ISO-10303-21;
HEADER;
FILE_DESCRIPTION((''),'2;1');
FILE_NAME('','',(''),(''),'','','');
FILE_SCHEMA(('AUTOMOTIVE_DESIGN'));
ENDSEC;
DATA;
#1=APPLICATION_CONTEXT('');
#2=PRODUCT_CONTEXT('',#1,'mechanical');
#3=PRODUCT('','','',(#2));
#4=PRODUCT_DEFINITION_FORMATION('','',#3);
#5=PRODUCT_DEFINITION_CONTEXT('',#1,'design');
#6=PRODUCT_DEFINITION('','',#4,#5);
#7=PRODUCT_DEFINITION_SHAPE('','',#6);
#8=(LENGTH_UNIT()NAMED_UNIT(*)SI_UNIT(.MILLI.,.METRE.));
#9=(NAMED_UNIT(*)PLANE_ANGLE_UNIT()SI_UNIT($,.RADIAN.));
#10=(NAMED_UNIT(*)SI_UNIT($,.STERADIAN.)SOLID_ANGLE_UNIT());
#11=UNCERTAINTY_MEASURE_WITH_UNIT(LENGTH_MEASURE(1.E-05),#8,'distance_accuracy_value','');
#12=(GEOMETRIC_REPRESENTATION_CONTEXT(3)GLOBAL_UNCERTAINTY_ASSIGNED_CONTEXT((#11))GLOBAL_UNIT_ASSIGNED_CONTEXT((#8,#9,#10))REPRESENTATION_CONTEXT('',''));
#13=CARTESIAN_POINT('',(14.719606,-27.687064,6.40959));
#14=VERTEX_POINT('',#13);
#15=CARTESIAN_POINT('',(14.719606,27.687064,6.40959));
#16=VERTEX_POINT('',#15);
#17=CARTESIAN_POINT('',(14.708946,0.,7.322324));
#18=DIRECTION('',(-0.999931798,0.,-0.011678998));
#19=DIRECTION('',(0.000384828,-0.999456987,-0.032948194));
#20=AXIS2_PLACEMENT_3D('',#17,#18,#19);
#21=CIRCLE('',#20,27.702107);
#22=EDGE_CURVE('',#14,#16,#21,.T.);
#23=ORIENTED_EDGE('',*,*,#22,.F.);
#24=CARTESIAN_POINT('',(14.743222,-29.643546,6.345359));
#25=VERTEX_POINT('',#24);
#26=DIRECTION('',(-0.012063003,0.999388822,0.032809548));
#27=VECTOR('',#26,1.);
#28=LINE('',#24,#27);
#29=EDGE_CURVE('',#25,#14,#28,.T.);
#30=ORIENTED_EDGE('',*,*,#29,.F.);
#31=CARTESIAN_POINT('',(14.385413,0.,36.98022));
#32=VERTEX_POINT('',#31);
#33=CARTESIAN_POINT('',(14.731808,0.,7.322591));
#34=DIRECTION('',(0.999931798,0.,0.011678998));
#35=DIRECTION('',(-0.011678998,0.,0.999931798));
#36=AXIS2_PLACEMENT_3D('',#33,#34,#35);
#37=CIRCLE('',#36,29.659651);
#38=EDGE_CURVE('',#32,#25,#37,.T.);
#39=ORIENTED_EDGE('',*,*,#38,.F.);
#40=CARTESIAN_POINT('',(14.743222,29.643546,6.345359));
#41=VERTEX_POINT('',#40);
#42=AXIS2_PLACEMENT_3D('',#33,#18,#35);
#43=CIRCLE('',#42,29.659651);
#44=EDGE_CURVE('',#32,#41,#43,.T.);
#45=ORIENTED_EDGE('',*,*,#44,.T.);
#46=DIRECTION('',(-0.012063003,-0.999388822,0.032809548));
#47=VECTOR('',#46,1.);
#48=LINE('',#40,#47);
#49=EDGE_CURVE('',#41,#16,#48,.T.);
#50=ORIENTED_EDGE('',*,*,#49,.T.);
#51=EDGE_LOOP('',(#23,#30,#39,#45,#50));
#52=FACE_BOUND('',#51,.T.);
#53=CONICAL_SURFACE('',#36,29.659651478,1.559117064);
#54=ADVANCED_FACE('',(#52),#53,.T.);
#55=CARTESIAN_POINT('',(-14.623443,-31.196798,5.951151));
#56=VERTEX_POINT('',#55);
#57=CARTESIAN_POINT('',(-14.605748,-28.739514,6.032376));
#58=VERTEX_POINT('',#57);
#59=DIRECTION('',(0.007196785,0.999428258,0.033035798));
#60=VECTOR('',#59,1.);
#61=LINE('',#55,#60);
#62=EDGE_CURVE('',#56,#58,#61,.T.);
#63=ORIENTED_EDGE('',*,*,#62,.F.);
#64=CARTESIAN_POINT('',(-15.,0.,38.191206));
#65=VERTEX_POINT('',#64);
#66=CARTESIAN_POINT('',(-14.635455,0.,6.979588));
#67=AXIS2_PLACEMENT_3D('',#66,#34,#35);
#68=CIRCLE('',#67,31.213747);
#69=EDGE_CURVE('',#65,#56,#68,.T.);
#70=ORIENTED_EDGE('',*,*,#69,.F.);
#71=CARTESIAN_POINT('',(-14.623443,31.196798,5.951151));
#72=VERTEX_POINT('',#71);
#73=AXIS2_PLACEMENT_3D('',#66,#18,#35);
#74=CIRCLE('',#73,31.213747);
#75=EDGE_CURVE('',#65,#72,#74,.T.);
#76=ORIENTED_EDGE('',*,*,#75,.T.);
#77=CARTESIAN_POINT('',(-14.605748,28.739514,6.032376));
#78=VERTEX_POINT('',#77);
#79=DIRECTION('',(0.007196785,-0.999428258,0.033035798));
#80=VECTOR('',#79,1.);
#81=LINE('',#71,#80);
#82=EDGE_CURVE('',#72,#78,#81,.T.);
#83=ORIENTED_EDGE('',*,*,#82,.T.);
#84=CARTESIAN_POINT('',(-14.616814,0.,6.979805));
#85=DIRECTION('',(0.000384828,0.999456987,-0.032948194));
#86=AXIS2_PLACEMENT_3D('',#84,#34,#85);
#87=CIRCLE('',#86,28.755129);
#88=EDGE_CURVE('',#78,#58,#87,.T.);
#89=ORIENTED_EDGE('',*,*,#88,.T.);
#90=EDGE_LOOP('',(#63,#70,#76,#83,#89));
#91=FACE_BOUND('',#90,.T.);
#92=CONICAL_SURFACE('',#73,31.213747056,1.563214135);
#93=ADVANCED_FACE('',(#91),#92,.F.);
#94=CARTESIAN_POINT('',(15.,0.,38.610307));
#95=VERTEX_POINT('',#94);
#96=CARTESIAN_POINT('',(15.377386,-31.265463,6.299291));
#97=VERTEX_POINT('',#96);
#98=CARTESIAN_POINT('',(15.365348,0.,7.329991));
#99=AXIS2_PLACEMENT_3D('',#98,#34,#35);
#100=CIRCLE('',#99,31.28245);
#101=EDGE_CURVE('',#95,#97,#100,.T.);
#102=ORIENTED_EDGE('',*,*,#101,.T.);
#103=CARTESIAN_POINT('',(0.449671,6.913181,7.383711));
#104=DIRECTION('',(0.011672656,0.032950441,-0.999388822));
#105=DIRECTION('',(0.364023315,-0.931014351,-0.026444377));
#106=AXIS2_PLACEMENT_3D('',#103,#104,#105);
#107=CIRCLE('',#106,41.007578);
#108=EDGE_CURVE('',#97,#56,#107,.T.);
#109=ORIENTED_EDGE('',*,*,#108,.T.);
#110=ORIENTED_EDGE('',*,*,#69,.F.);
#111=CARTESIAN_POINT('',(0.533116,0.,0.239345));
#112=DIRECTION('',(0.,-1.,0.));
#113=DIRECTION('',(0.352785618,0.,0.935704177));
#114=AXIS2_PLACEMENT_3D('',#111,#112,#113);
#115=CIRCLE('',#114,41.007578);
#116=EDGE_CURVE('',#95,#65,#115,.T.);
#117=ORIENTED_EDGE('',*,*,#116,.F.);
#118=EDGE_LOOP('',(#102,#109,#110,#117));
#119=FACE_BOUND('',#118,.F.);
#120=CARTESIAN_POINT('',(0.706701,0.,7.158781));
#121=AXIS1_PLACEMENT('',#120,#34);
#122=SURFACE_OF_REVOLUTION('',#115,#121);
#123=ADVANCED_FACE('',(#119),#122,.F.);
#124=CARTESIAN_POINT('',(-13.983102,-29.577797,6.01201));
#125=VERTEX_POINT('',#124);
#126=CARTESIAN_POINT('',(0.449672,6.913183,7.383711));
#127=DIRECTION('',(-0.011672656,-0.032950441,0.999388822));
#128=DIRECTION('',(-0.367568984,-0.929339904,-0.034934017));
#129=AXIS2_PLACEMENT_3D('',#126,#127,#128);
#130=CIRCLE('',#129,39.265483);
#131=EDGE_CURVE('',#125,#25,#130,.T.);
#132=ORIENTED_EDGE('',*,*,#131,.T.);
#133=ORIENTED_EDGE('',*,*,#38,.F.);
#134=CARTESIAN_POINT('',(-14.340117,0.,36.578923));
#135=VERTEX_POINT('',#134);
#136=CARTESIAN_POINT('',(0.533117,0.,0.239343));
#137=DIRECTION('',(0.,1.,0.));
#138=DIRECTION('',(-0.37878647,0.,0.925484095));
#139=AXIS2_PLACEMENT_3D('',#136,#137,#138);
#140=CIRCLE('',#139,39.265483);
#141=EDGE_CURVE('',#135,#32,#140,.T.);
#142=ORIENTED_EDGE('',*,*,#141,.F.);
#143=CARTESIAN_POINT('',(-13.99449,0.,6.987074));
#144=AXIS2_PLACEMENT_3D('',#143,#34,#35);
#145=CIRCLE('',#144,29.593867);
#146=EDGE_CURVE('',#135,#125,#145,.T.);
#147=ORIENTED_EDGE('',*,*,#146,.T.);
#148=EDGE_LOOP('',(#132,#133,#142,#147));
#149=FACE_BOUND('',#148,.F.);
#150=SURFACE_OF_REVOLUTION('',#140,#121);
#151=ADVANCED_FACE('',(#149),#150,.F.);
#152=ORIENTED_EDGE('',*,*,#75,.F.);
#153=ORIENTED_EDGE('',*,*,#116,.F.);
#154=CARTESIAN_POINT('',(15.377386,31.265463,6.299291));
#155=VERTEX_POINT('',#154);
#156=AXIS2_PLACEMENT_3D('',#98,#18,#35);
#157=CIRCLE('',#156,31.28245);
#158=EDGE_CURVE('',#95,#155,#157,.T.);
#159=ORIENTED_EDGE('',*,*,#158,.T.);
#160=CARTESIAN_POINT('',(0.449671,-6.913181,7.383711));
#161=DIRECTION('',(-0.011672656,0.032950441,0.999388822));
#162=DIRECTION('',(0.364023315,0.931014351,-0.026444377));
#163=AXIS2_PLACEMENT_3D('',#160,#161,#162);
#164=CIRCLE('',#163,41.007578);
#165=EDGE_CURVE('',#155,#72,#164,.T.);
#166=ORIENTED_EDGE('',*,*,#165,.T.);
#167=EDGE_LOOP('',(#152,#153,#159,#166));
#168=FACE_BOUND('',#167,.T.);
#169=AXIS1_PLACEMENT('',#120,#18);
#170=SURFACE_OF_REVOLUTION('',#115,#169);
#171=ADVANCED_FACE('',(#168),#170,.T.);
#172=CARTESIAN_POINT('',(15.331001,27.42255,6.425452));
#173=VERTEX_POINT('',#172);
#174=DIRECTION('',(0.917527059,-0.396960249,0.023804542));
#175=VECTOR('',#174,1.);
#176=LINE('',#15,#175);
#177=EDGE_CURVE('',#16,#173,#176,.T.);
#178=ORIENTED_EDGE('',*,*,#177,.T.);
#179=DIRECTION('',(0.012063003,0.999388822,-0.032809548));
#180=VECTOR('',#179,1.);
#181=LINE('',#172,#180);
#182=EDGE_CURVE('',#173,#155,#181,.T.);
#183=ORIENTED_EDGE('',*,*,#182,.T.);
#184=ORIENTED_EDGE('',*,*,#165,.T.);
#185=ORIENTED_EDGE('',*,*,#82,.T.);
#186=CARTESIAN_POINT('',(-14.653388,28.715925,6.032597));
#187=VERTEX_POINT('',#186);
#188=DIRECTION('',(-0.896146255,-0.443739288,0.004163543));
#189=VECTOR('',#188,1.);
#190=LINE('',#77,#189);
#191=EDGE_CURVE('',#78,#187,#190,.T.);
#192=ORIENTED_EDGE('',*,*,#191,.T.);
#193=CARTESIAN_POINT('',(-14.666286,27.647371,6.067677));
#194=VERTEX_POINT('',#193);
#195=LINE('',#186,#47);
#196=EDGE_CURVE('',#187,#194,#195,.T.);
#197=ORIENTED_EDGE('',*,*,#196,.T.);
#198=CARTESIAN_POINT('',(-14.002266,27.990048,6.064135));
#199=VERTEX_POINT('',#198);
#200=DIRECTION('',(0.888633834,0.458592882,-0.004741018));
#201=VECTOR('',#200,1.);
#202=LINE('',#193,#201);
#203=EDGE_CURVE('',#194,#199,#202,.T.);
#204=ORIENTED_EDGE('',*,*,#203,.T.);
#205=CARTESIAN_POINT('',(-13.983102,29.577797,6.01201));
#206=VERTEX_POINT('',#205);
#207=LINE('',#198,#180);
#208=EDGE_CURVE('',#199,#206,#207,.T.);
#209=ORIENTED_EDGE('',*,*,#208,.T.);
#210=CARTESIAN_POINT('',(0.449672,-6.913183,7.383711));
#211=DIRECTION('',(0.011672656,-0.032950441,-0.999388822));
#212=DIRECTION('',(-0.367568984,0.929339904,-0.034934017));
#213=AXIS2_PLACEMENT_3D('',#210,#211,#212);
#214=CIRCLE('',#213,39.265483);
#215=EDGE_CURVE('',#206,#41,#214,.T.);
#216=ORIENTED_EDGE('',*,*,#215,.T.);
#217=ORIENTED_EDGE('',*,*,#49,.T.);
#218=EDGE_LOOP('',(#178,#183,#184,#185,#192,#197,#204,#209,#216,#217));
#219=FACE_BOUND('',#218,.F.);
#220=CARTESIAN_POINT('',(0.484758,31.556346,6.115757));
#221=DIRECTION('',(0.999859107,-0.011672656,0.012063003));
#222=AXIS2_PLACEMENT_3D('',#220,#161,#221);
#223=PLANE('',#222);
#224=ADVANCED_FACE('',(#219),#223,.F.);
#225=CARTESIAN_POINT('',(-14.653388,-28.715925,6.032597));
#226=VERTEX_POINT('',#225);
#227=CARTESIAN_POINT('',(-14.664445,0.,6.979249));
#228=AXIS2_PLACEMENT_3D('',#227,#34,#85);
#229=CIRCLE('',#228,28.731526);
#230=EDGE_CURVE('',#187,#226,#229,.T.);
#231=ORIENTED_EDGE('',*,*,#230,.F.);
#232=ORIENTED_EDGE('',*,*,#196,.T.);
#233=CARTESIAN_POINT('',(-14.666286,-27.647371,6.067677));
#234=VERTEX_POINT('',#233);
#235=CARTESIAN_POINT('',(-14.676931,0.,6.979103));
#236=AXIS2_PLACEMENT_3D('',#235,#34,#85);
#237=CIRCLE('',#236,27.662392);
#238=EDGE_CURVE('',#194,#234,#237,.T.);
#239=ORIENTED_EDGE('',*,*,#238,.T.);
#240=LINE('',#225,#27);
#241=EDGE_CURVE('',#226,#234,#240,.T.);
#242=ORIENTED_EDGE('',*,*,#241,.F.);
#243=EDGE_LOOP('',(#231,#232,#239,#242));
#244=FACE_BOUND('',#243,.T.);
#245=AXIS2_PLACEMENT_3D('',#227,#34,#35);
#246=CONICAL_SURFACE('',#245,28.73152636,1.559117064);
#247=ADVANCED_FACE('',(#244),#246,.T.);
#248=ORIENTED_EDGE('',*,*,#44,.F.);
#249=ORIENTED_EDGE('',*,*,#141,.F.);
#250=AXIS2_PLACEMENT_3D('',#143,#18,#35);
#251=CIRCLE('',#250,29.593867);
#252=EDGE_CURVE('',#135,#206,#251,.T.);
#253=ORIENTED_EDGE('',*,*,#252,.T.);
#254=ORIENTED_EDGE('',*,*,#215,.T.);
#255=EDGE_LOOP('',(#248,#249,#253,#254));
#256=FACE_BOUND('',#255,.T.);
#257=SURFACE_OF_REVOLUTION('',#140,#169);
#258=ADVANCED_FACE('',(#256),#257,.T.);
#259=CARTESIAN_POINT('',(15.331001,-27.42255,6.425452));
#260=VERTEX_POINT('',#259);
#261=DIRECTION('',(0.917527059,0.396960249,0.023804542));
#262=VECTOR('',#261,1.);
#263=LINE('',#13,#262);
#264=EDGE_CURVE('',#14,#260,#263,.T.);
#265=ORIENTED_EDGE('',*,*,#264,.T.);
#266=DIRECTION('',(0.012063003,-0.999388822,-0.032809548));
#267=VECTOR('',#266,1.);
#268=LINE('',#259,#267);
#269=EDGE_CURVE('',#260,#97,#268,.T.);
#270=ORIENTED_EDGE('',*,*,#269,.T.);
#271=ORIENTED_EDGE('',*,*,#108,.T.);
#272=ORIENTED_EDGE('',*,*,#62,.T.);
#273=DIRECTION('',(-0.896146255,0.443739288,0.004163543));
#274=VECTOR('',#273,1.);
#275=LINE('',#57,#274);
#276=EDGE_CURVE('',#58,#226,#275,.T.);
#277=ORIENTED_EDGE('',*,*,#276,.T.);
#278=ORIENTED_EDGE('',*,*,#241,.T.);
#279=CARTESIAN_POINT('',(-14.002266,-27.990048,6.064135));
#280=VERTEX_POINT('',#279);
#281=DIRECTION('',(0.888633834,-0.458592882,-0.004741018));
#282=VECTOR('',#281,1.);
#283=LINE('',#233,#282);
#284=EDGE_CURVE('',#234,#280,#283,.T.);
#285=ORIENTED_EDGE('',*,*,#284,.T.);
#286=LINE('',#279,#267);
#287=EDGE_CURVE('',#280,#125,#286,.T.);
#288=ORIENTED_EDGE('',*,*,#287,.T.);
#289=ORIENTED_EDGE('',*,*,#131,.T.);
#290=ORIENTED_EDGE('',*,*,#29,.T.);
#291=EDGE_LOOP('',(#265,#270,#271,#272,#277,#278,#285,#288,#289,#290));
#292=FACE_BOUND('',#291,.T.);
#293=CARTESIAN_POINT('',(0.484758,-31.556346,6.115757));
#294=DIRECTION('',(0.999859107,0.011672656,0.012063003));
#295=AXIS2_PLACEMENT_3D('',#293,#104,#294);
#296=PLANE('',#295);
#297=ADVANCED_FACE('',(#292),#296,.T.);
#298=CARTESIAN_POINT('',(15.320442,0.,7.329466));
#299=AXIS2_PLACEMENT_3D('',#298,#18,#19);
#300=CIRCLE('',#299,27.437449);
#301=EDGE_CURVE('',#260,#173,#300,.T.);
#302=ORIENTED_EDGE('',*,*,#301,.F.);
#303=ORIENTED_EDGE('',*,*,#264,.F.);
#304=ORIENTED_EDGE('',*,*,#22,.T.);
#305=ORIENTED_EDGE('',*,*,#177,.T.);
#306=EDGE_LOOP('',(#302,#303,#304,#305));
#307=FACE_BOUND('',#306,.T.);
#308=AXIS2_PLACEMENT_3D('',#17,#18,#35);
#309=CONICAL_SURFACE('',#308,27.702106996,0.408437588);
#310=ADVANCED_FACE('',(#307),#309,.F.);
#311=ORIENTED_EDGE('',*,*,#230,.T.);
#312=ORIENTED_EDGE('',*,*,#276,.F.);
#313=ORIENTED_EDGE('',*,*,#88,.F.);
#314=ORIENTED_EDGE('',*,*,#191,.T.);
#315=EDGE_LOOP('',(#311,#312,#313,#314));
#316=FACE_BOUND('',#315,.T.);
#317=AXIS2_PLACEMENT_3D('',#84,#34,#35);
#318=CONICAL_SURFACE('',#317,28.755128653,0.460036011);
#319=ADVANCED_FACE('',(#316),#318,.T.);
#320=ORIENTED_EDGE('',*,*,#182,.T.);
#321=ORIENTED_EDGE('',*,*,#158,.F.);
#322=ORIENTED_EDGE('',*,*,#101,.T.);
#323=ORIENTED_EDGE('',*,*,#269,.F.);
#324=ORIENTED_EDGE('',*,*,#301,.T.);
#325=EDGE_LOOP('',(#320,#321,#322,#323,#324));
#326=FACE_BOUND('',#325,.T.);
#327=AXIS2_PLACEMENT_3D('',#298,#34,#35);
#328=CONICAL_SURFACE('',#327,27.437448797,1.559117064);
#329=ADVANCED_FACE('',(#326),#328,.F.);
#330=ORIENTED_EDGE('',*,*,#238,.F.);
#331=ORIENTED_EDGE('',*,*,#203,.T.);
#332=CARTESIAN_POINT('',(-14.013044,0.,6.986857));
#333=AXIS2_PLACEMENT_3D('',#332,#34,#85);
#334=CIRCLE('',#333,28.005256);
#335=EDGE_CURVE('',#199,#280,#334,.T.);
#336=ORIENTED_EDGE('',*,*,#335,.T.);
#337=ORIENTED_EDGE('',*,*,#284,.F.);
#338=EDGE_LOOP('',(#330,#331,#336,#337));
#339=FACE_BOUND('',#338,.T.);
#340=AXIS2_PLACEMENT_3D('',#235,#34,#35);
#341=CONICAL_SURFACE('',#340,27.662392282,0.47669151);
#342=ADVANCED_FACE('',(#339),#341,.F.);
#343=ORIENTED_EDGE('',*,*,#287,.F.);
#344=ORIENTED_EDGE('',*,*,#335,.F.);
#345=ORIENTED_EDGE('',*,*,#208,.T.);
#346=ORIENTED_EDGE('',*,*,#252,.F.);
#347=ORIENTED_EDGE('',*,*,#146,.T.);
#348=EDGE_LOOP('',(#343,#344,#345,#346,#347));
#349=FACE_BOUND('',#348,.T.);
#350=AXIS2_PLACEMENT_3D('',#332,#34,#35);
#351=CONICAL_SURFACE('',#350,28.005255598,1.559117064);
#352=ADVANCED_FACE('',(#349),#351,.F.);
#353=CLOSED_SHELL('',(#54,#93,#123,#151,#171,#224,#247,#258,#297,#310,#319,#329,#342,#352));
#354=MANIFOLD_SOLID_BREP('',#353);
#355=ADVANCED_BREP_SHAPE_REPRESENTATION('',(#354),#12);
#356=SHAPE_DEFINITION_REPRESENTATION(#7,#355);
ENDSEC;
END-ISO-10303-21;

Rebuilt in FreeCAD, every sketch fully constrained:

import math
import FreeCAD as App
import Part
import Sketcher
from FreeCAD import Vector

doc = App.newDocument("Part")
params = doc.addObject("Spreadsheet::Sheet", "Params")
for row, (alias, value) in enumerate([
    ("revolution_angle", "91.888263 deg"),
    ("revolution2_angle", "91.888263 deg"),
], start=1):
    params.set(f"A{row}", alias)
    params.set(f"B{row}", "=" + value)
    params.setAlias(f"B{row}", alias)

body = doc.addObject("PartDesign::Body", "Body")

sketch1 = body.newObject("Sketcher::SketchObject", "Sketch")
sketch1.AttachmentSupport = (doc.getObject("XZ_Plane"), [""])
sketch1.MapMode = "FlatFace"
sketch1.addGeometry(Part.ArcOfCircle(Part.Circle(Vector(0.53, 0.24, 0), Vector(0, 0, 1), 41.01), math.radians(69), math.radians(112)), False)
sketch1.addGeometry(Part.LineSegment(Vector(-15, 38.19, 0), Vector(-14.95, 35.73, 0)), False)
sketch1.addGeometry(Part.LineSegment(Vector(-14.95, 35.73, 0), Vector(-15, 35.71, 0)), False)
sketch1.addGeometry(Part.LineSegment(Vector(-15, 35.71, 0), Vector(-15, 34.64, 0)), False)
sketch1.addGeometry(Part.LineSegment(Vector(-15, 34.64, 0), Vector(-14.34, 34.99, 0)), False)
sketch1.addGeometry(Part.LineSegment(Vector(-14.34, 34.99, 0), Vector(-14.34, 36.58, 0)), False)
sketch1.addGeometry(Part.ArcOfCircle(Part.Circle(Vector(0.53, 0.24, 0), Vector(0, 0, 1), 39.27), math.radians(69), math.radians(112)), False)
sketch1.addGeometry(Part.LineSegment(Vector(14.39, 36.98, 0), Vector(14.39, 35.02, 0)), False)
sketch1.addGeometry(Part.LineSegment(Vector(14.39, 35.02, 0), Vector(15, 34.77, 0)), False)
sketch1.addGeometry(Part.LineSegment(Vector(15, 34.77, 0), Vector(15, 38.61, 0)), False)
sketch1.addGeometry(Part.LineSegment(Vector(-14.68, 6.98, 0), Vector(15.37, 7.33, 0)), True)
sketch1.addConstraint(Sketcher.Constraint("Coincident", 0, 2, 1, 1))
sketch1.addConstraint(Sketcher.Constraint("Coincident", 1, 2, 2, 1))
sketch1.addConstraint(Sketcher.Constraint("Coincident", 2, 2, 3, 1))
sketch1.addConstraint(Sketcher.Constraint("Coincident", 3, 2, 4, 1))
sketch1.addConstraint(Sketcher.Constraint("Coincident", 4, 2, 5, 1))
sketch1.addConstraint(Sketcher.Constraint("Coincident", 5, 2, 6, 2))
sketch1.addConstraint(Sketcher.Constraint("Coincident", 6, 1, 7, 1))
sketch1.addConstraint(Sketcher.Constraint("Coincident", 7, 2, 8, 1))
sketch1.addConstraint(Sketcher.Constraint("Coincident", 8, 2, 9, 1))
sketch1.addConstraint(Sketcher.Constraint("Coincident", 9, 2, 0, 1))
sketch1.addConstraint(Sketcher.Constraint("Vertical", 3))
sketch1.addConstraint(Sketcher.Constraint("Vertical", 5))
sketch1.addConstraint(Sketcher.Constraint("Vertical", 7))
sketch1.addConstraint(Sketcher.Constraint("Vertical", 9))
sketch1.addConstraint(Sketcher.Constraint("Coincident", 6, 3, 0, 3))
sketch1.addConstraint(Sketcher.Constraint("Vertical", 0, 2, 2, 2))
sketch1.addConstraint(Sketcher.Constraint("DistanceX", 0, 2, -1, 1, 15.0))
sketch1.addConstraint(Sketcher.Constraint("DistanceX", -1, 1, 8, 2, 15.0))
sketch1.addConstraint(Sketcher.Constraint("Radius", 0, 41.007578))
sketch1.addConstraint(Sketcher.Constraint("Radius", 6, 39.265483))
sketch1.addConstraint(Sketcher.Constraint("DistanceY", 5, 1, 5, 2, 1.58872))
sketch1.addConstraint(Sketcher.Constraint("DistanceY", 7, 2, 7, 1, 1.957678))
sketch1.addConstraint(Sketcher.Constraint("DistanceY", 10, 1, 4, 2, 28.0111))
sketch1.addConstraint(Sketcher.Constraint("Distance", 1, 2.458689))
sketch1.addConstraint(Sketcher.Constraint("Distance", 2, 0.053161))
sketch1.addConstraint(Sketcher.Constraint("Distance", 8, 0.66635))
sketch1.addConstraint(Sketcher.Constraint("DistanceY", 3, 2, 3, 1, 1.069207))
sketch1.addConstraint(Sketcher.Constraint("DistanceY", 9, 1, 9, 2, 3.845263))
sketch1.addConstraint(Sketcher.Constraint("DistanceY", -1, 1, 3, 2, 34.639609))
sketch1.addConstraint(Sketcher.Constraint("DistanceY", -1, 1, 6, 1, 36.98022))
sketch1.addConstraint(Sketcher.Constraint("DistanceX", 10, 1, -1, 1, 14.676931))
sketch1.addConstraint(Sketcher.Constraint("DistanceY", -1, 1, 10, 2, 7.329991))
sketch1.addConstraint(Sketcher.Constraint("DistanceY", 0, 3, 0, 2, 37.951861))
sketch1.addConstraint(Sketcher.Constraint("DistanceX", 1, 2, 4, 2, 0.612528))
sketch1.addConstraint(Sketcher.Constraint("DistanceX", 0, 3, 10, 2, 14.832231))
revolution = body.newObject("PartDesign::Revolution", "Revolution")
revolution.Profile = sketch1
revolution.ReferenceAxis = (sketch1, ["Axis0"])
revolution.setExpression("Angle", "Params.revolution_angle")

sketch2 = body.newObject("Sketcher::SketchObject", "Sketch001")
sketch2.AttachmentSupport = (doc.getObject("XZ_Plane"), [""])
sketch2.MapMode = "FlatFace"
sketch2.addGeometry(Part.ArcOfCircle(Part.Circle(Vector(0.53, 0.24, 0), Vector(0, 0, 1), 41.01), math.radians(69), math.radians(112)), False)
sketch2.addGeometry(Part.LineSegment(Vector(-15, 38.19, 0), Vector(-14.95, 35.73, 0)), False)
sketch2.addGeometry(Part.LineSegment(Vector(-14.95, 35.73, 0), Vector(-15, 35.71, 0)), False)
sketch2.addGeometry(Part.LineSegment(Vector(-15, 35.71, 0), Vector(-15, 34.64, 0)), False)
sketch2.addGeometry(Part.LineSegment(Vector(-15, 34.64, 0), Vector(-14.34, 34.99, 0)), False)
sketch2.addGeometry(Part.LineSegment(Vector(-14.34, 34.99, 0), Vector(-14.34, 36.58, 0)), False)
sketch2.addGeometry(Part.ArcOfCircle(Part.Circle(Vector(0.53, 0.24, 0), Vector(0, 0, 1), 39.27), math.radians(69), math.radians(112)), False)
sketch2.addGeometry(Part.LineSegment(Vector(14.39, 36.98, 0), Vector(14.39, 35.02, 0)), False)
sketch2.addGeometry(Part.LineSegment(Vector(14.39, 35.02, 0), Vector(15, 34.77, 0)), False)
sketch2.addGeometry(Part.LineSegment(Vector(15, 34.77, 0), Vector(15, 38.61, 0)), False)
sketch2.addGeometry(Part.LineSegment(Vector(15.37, 7.33, 0), Vector(-14.68, 6.98, 0)), True)
sketch2.addConstraint(Sketcher.Constraint("Coincident", 0, 2, 1, 1))
sketch2.addConstraint(Sketcher.Constraint("Coincident", 1, 2, 2, 1))
sketch2.addConstraint(Sketcher.Constraint("Coincident", 2, 2, 3, 1))
sketch2.addConstraint(Sketcher.Constraint("Coincident", 3, 2, 4, 1))
sketch2.addConstraint(Sketcher.Constraint("Coincident", 4, 2, 5, 1))
sketch2.addConstraint(Sketcher.Constraint("Coincident", 5, 2, 6, 2))
sketch2.addConstraint(Sketcher.Constraint("Coincident", 6, 1, 7, 1))
sketch2.addConstraint(Sketcher.Constraint("Coincident", 7, 2, 8, 1))
sketch2.addConstraint(Sketcher.Constraint("Coincident", 8, 2, 9, 1))
sketch2.addConstraint(Sketcher.Constraint("Coincident", 9, 2, 0, 1))
sketch2.addConstraint(Sketcher.Constraint("Vertical", 3))
sketch2.addConstraint(Sketcher.Constraint("Vertical", 5))
sketch2.addConstraint(Sketcher.Constraint("Vertical", 7))
sketch2.addConstraint(Sketcher.Constraint("Vertical", 9))
sketch2.addConstraint(Sketcher.Constraint("Coincident", 6, 3, 0, 3))
sketch2.addConstraint(Sketcher.Constraint("Vertical", 0, 2, 2, 2))
sketch2.addConstraint(Sketcher.Constraint("DistanceX", 0, 2, -1, 1, 15.0))
sketch2.addConstraint(Sketcher.Constraint("DistanceX", -1, 1, 8, 2, 15.0))
sketch2.addConstraint(Sketcher.Constraint("Radius", 0, 41.007578))
sketch2.addConstraint(Sketcher.Constraint("Radius", 6, 39.265483))
sketch2.addConstraint(Sketcher.Constraint("DistanceY", 5, 1, 5, 2, 1.58872))
sketch2.addConstraint(Sketcher.Constraint("DistanceY", 7, 2, 7, 1, 1.957678))
sketch2.addConstraint(Sketcher.Constraint("DistanceY", 10, 2, 4, 2, 28.0111))
sketch2.addConstraint(Sketcher.Constraint("Distance", 1, 2.458689))
sketch2.addConstraint(Sketcher.Constraint("Distance", 2, 0.053161))
sketch2.addConstraint(Sketcher.Constraint("Distance", 8, 0.66635))
sketch2.addConstraint(Sketcher.Constraint("DistanceY", 3, 2, 3, 1, 1.069207))
sketch2.addConstraint(Sketcher.Constraint("DistanceY", 9, 1, 9, 2, 3.845263))
sketch2.addConstraint(Sketcher.Constraint("DistanceY", -1, 1, 3, 2, 34.639609))
sketch2.addConstraint(Sketcher.Constraint("DistanceY", -1, 1, 6, 1, 36.98022))
sketch2.addConstraint(Sketcher.Constraint("DistanceY", -1, 1, 10, 1, 7.329991))
sketch2.addConstraint(Sketcher.Constraint("DistanceX", 10, 2, -1, 1, 14.676931))
sketch2.addConstraint(Sketcher.Constraint("DistanceY", 0, 3, 0, 2, 37.951861))
sketch2.addConstraint(Sketcher.Constraint("DistanceX", 1, 2, 4, 2, 0.612528))
sketch2.addConstraint(Sketcher.Constraint("DistanceX", 0, 3, 10, 1, 14.832231))
revolution2 = body.newObject("PartDesign::Revolution", "Revolution001")
revolution2.Profile = sketch2
revolution2.ReferenceAxis = (sketch2, ["Axis0"])
revolution2.setExpression("Angle", "Params.revolution2_angle")

doc.recompute()
